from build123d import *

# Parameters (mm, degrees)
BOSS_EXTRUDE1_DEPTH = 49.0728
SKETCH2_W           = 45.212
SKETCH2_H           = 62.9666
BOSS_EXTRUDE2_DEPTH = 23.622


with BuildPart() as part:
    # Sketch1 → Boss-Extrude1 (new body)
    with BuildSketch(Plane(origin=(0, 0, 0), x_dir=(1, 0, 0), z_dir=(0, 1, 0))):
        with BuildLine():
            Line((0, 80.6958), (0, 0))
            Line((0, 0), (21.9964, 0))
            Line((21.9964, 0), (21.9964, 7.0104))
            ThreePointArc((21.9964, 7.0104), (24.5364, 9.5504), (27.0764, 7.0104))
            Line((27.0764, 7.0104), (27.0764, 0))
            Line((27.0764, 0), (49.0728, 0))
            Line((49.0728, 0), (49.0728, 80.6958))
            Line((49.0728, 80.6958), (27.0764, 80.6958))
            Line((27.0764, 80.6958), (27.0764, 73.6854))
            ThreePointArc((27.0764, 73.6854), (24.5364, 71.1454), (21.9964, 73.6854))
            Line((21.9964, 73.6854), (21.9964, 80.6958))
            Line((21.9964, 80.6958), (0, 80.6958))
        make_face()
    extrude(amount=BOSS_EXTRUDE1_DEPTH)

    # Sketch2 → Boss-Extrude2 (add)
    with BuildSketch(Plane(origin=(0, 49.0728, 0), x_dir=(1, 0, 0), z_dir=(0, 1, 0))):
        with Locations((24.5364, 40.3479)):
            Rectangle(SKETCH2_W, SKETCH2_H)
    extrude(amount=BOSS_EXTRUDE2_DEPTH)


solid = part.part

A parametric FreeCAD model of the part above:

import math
import FreeCAD as App
import Part
import Sketcher
from FreeCAD import Vector
Q = App.Units.Quantity


def add_polygon(sketch, points):
    """Adds a closed chain of lines whose ends are joined by coincident constraints."""
    first, n = sketch.GeometryCount, len(points)
    for a, b in zip(points, points[1:] + points[:1]):
        sketch.addGeometry(Part.LineSegment(App.Vector(*a, 0), App.Vector(*b, 0)), False)
    for i in range(n):
        sketch.addConstraint(Sketcher.Constraint("Coincident", first + i, 2, first + (i + 1) % n, 1))

doc = App.newDocument("Part")
body = doc.addObject("PartDesign::Body", "Body")

# Sketch on XZ plane
sketch1 = body.newObject("Sketcher::SketchObject", "Sketch")
sketch1.AttachmentSupport = (doc.getObject("XZ_Plane"), [""])
sketch1.MapMode = "FlatFace"
sketch1.addGeometry([
    Part.LineSegment(Vector(0, -80.7, 0), Vector(0, 0, 0)),  # 0
    Part.LineSegment(Vector(0, 0, 0), Vector(22, 0, 0)),  # 1
    Part.LineSegment(Vector(22, 0, 0), Vector(22, -7, 0)),  # 2
    Part.ArcOfCircle(Part.Circle(Vector(24.5, -7, 0), Vector(0, 0, 1), 2.5), math.radians(180), math.radians(360)),  # 3
    Part.LineSegment(Vector(27.1, -7, 0), Vector(27.1, 0, 0)),  # 4
    Part.LineSegment(Vector(27.1, 0, 0), Vector(49.1, 0, 0)),  # 5
    Part.LineSegment(Vector(49.1, 0, 0), Vector(49.1, -80.7, 0)),  # 6
    Part.LineSegment(Vector(49.1, -80.7, 0), Vector(27.1, -80.7, 0)),  # 7
    Part.LineSegment(Vector(27.1, -80.7, 0), Vector(27.1, -73.7, 0)),  # 8
    Part.ArcOfCircle(Part.Circle(Vector(24.5, -73.7, 0), Vector(0, 0, 1), 2.5), math.radians(0), math.radians(180)),  # 9
    Part.LineSegment(Vector(22, -73.7, 0), Vector(22, -80.7, 0)),  # 10
    Part.LineSegment(Vector(22, -80.7, 0), Vector(0, -80.7, 0)),  # 11
], False)
sketch1.addConstraint([
    Sketcher.Constraint("Coincident", 0, 2, 1, 1),
    Sketcher.Constraint("Coincident", 1, 2, 2, 1),
    Sketcher.Constraint("Tangent", 2, 2, 3, 1),
    Sketcher.Constraint("Tangent", 3, 2, 4, 1),
    Sketcher.Constraint("Coincident", 4, 2, 5, 1),
    Sketcher.Constraint("Coincident", 5, 2, 6, 1),
    Sketcher.Constraint("Coincident", 6, 2, 7, 1),
    Sketcher.Constraint("Coincident", 7, 2, 8, 1),
    Sketcher.Constraint("Tangent", 8, 2, 9, 1),
    Sketcher.Constraint("Tangent", 9, 2, 10, 1),
    Sketcher.Constraint("Coincident", 10, 2, 11, 1),
    Sketcher.Constraint("Coincident", 11, 2, 0, 1),
    Sketcher.Constraint("Vertical", 0),
    Sketcher.Constraint("Horizontal", 1),
    Sketcher.Constraint("Vertical", 2),
    Sketcher.Constraint("Vertical", 4),
    Sketcher.Constraint("Horizontal", 5),
    Sketcher.Constraint("Vertical", 6),
    Sketcher.Constraint("Horizontal", 7),
    Sketcher.Constraint("Vertical", 8),
    Sketcher.Constraint("Vertical", 10),
    Sketcher.Constraint("Horizontal", 11),
    Sketcher.Constraint("Coincident", 0, 2, -1, 1),
    Sketcher.Constraint("Equal", 3, 9),
    Sketcher.Constraint("PointOnObject", 4, 2, -1),
    Sketcher.Constraint("Horizontal", 7, 2, 10, 2),
    Sketcher.Constraint("Vertical", 3, 3, 9, 3),
    Sketcher.Constraint("Equal", 1, 5),
    Sketcher.Constraint("Equal", 4, 8),
    Sketcher.Constraint("Radius", 3, Q("0.1 in")),
    Sketcher.Constraint("DistanceX", 1, 1, 1, 2, Q("0.866 in")),
    Sketcher.Constraint("DistanceY", 0, 1, 0, 2, Q("3.177 in")),
    Sketcher.Constraint("DistanceY", 2, 2, 2, 1, Q("0.276 in")),
])
pad1 = body.newObject("PartDesign::Pad", "Pad")
pad1.Profile = sketch1
pad1.Length = Q("1.932 in")
pad1.Reversed = True

# Sketch on XZ plane
sketch2 = body.newObject("Sketcher::SketchObject", "Sketch001")
sketch2.AttachmentSupport = (doc.getObject("XZ_Plane"), [""])
sketch2.MapMode = "FlatFace"
sketch2.AttachmentOffset = App.Placement(Vector(0, 0, -1.932 * 25.4), App.Rotation())
add_polygon(sketch2, [(2, -72), (2, -9), (47, -9), (47, -72)])  # lines 0-3
sketch2.addConstraint([
    Sketcher.Constraint("Vertical", 0),
    Sketcher.Constraint("Horizontal", 1),
    Sketcher.Constraint("Vertical", 2),
    Sketcher.Constraint("Horizontal", 3),
    Sketcher.Constraint("DistanceX", 1, 1, 1, 2, Q("1.78 in")),
    Sketcher.Constraint("DistanceY", 0, 1, 0, 2, Q("2.479 in")),
    Sketcher.Constraint("DistanceX", -1, 1, 0, 2, Q("0.076 in")),
    Sketcher.Constraint("DistanceY", 0, 2, -1, 1, Q("0.349 in")),
])
pad2 = body.newObject("PartDesign::Pad", "Pad001")
pad2.Profile = sketch2
pad2.Length = Q("0.93 in")
pad2.Reversed = True

doc.recompute()
